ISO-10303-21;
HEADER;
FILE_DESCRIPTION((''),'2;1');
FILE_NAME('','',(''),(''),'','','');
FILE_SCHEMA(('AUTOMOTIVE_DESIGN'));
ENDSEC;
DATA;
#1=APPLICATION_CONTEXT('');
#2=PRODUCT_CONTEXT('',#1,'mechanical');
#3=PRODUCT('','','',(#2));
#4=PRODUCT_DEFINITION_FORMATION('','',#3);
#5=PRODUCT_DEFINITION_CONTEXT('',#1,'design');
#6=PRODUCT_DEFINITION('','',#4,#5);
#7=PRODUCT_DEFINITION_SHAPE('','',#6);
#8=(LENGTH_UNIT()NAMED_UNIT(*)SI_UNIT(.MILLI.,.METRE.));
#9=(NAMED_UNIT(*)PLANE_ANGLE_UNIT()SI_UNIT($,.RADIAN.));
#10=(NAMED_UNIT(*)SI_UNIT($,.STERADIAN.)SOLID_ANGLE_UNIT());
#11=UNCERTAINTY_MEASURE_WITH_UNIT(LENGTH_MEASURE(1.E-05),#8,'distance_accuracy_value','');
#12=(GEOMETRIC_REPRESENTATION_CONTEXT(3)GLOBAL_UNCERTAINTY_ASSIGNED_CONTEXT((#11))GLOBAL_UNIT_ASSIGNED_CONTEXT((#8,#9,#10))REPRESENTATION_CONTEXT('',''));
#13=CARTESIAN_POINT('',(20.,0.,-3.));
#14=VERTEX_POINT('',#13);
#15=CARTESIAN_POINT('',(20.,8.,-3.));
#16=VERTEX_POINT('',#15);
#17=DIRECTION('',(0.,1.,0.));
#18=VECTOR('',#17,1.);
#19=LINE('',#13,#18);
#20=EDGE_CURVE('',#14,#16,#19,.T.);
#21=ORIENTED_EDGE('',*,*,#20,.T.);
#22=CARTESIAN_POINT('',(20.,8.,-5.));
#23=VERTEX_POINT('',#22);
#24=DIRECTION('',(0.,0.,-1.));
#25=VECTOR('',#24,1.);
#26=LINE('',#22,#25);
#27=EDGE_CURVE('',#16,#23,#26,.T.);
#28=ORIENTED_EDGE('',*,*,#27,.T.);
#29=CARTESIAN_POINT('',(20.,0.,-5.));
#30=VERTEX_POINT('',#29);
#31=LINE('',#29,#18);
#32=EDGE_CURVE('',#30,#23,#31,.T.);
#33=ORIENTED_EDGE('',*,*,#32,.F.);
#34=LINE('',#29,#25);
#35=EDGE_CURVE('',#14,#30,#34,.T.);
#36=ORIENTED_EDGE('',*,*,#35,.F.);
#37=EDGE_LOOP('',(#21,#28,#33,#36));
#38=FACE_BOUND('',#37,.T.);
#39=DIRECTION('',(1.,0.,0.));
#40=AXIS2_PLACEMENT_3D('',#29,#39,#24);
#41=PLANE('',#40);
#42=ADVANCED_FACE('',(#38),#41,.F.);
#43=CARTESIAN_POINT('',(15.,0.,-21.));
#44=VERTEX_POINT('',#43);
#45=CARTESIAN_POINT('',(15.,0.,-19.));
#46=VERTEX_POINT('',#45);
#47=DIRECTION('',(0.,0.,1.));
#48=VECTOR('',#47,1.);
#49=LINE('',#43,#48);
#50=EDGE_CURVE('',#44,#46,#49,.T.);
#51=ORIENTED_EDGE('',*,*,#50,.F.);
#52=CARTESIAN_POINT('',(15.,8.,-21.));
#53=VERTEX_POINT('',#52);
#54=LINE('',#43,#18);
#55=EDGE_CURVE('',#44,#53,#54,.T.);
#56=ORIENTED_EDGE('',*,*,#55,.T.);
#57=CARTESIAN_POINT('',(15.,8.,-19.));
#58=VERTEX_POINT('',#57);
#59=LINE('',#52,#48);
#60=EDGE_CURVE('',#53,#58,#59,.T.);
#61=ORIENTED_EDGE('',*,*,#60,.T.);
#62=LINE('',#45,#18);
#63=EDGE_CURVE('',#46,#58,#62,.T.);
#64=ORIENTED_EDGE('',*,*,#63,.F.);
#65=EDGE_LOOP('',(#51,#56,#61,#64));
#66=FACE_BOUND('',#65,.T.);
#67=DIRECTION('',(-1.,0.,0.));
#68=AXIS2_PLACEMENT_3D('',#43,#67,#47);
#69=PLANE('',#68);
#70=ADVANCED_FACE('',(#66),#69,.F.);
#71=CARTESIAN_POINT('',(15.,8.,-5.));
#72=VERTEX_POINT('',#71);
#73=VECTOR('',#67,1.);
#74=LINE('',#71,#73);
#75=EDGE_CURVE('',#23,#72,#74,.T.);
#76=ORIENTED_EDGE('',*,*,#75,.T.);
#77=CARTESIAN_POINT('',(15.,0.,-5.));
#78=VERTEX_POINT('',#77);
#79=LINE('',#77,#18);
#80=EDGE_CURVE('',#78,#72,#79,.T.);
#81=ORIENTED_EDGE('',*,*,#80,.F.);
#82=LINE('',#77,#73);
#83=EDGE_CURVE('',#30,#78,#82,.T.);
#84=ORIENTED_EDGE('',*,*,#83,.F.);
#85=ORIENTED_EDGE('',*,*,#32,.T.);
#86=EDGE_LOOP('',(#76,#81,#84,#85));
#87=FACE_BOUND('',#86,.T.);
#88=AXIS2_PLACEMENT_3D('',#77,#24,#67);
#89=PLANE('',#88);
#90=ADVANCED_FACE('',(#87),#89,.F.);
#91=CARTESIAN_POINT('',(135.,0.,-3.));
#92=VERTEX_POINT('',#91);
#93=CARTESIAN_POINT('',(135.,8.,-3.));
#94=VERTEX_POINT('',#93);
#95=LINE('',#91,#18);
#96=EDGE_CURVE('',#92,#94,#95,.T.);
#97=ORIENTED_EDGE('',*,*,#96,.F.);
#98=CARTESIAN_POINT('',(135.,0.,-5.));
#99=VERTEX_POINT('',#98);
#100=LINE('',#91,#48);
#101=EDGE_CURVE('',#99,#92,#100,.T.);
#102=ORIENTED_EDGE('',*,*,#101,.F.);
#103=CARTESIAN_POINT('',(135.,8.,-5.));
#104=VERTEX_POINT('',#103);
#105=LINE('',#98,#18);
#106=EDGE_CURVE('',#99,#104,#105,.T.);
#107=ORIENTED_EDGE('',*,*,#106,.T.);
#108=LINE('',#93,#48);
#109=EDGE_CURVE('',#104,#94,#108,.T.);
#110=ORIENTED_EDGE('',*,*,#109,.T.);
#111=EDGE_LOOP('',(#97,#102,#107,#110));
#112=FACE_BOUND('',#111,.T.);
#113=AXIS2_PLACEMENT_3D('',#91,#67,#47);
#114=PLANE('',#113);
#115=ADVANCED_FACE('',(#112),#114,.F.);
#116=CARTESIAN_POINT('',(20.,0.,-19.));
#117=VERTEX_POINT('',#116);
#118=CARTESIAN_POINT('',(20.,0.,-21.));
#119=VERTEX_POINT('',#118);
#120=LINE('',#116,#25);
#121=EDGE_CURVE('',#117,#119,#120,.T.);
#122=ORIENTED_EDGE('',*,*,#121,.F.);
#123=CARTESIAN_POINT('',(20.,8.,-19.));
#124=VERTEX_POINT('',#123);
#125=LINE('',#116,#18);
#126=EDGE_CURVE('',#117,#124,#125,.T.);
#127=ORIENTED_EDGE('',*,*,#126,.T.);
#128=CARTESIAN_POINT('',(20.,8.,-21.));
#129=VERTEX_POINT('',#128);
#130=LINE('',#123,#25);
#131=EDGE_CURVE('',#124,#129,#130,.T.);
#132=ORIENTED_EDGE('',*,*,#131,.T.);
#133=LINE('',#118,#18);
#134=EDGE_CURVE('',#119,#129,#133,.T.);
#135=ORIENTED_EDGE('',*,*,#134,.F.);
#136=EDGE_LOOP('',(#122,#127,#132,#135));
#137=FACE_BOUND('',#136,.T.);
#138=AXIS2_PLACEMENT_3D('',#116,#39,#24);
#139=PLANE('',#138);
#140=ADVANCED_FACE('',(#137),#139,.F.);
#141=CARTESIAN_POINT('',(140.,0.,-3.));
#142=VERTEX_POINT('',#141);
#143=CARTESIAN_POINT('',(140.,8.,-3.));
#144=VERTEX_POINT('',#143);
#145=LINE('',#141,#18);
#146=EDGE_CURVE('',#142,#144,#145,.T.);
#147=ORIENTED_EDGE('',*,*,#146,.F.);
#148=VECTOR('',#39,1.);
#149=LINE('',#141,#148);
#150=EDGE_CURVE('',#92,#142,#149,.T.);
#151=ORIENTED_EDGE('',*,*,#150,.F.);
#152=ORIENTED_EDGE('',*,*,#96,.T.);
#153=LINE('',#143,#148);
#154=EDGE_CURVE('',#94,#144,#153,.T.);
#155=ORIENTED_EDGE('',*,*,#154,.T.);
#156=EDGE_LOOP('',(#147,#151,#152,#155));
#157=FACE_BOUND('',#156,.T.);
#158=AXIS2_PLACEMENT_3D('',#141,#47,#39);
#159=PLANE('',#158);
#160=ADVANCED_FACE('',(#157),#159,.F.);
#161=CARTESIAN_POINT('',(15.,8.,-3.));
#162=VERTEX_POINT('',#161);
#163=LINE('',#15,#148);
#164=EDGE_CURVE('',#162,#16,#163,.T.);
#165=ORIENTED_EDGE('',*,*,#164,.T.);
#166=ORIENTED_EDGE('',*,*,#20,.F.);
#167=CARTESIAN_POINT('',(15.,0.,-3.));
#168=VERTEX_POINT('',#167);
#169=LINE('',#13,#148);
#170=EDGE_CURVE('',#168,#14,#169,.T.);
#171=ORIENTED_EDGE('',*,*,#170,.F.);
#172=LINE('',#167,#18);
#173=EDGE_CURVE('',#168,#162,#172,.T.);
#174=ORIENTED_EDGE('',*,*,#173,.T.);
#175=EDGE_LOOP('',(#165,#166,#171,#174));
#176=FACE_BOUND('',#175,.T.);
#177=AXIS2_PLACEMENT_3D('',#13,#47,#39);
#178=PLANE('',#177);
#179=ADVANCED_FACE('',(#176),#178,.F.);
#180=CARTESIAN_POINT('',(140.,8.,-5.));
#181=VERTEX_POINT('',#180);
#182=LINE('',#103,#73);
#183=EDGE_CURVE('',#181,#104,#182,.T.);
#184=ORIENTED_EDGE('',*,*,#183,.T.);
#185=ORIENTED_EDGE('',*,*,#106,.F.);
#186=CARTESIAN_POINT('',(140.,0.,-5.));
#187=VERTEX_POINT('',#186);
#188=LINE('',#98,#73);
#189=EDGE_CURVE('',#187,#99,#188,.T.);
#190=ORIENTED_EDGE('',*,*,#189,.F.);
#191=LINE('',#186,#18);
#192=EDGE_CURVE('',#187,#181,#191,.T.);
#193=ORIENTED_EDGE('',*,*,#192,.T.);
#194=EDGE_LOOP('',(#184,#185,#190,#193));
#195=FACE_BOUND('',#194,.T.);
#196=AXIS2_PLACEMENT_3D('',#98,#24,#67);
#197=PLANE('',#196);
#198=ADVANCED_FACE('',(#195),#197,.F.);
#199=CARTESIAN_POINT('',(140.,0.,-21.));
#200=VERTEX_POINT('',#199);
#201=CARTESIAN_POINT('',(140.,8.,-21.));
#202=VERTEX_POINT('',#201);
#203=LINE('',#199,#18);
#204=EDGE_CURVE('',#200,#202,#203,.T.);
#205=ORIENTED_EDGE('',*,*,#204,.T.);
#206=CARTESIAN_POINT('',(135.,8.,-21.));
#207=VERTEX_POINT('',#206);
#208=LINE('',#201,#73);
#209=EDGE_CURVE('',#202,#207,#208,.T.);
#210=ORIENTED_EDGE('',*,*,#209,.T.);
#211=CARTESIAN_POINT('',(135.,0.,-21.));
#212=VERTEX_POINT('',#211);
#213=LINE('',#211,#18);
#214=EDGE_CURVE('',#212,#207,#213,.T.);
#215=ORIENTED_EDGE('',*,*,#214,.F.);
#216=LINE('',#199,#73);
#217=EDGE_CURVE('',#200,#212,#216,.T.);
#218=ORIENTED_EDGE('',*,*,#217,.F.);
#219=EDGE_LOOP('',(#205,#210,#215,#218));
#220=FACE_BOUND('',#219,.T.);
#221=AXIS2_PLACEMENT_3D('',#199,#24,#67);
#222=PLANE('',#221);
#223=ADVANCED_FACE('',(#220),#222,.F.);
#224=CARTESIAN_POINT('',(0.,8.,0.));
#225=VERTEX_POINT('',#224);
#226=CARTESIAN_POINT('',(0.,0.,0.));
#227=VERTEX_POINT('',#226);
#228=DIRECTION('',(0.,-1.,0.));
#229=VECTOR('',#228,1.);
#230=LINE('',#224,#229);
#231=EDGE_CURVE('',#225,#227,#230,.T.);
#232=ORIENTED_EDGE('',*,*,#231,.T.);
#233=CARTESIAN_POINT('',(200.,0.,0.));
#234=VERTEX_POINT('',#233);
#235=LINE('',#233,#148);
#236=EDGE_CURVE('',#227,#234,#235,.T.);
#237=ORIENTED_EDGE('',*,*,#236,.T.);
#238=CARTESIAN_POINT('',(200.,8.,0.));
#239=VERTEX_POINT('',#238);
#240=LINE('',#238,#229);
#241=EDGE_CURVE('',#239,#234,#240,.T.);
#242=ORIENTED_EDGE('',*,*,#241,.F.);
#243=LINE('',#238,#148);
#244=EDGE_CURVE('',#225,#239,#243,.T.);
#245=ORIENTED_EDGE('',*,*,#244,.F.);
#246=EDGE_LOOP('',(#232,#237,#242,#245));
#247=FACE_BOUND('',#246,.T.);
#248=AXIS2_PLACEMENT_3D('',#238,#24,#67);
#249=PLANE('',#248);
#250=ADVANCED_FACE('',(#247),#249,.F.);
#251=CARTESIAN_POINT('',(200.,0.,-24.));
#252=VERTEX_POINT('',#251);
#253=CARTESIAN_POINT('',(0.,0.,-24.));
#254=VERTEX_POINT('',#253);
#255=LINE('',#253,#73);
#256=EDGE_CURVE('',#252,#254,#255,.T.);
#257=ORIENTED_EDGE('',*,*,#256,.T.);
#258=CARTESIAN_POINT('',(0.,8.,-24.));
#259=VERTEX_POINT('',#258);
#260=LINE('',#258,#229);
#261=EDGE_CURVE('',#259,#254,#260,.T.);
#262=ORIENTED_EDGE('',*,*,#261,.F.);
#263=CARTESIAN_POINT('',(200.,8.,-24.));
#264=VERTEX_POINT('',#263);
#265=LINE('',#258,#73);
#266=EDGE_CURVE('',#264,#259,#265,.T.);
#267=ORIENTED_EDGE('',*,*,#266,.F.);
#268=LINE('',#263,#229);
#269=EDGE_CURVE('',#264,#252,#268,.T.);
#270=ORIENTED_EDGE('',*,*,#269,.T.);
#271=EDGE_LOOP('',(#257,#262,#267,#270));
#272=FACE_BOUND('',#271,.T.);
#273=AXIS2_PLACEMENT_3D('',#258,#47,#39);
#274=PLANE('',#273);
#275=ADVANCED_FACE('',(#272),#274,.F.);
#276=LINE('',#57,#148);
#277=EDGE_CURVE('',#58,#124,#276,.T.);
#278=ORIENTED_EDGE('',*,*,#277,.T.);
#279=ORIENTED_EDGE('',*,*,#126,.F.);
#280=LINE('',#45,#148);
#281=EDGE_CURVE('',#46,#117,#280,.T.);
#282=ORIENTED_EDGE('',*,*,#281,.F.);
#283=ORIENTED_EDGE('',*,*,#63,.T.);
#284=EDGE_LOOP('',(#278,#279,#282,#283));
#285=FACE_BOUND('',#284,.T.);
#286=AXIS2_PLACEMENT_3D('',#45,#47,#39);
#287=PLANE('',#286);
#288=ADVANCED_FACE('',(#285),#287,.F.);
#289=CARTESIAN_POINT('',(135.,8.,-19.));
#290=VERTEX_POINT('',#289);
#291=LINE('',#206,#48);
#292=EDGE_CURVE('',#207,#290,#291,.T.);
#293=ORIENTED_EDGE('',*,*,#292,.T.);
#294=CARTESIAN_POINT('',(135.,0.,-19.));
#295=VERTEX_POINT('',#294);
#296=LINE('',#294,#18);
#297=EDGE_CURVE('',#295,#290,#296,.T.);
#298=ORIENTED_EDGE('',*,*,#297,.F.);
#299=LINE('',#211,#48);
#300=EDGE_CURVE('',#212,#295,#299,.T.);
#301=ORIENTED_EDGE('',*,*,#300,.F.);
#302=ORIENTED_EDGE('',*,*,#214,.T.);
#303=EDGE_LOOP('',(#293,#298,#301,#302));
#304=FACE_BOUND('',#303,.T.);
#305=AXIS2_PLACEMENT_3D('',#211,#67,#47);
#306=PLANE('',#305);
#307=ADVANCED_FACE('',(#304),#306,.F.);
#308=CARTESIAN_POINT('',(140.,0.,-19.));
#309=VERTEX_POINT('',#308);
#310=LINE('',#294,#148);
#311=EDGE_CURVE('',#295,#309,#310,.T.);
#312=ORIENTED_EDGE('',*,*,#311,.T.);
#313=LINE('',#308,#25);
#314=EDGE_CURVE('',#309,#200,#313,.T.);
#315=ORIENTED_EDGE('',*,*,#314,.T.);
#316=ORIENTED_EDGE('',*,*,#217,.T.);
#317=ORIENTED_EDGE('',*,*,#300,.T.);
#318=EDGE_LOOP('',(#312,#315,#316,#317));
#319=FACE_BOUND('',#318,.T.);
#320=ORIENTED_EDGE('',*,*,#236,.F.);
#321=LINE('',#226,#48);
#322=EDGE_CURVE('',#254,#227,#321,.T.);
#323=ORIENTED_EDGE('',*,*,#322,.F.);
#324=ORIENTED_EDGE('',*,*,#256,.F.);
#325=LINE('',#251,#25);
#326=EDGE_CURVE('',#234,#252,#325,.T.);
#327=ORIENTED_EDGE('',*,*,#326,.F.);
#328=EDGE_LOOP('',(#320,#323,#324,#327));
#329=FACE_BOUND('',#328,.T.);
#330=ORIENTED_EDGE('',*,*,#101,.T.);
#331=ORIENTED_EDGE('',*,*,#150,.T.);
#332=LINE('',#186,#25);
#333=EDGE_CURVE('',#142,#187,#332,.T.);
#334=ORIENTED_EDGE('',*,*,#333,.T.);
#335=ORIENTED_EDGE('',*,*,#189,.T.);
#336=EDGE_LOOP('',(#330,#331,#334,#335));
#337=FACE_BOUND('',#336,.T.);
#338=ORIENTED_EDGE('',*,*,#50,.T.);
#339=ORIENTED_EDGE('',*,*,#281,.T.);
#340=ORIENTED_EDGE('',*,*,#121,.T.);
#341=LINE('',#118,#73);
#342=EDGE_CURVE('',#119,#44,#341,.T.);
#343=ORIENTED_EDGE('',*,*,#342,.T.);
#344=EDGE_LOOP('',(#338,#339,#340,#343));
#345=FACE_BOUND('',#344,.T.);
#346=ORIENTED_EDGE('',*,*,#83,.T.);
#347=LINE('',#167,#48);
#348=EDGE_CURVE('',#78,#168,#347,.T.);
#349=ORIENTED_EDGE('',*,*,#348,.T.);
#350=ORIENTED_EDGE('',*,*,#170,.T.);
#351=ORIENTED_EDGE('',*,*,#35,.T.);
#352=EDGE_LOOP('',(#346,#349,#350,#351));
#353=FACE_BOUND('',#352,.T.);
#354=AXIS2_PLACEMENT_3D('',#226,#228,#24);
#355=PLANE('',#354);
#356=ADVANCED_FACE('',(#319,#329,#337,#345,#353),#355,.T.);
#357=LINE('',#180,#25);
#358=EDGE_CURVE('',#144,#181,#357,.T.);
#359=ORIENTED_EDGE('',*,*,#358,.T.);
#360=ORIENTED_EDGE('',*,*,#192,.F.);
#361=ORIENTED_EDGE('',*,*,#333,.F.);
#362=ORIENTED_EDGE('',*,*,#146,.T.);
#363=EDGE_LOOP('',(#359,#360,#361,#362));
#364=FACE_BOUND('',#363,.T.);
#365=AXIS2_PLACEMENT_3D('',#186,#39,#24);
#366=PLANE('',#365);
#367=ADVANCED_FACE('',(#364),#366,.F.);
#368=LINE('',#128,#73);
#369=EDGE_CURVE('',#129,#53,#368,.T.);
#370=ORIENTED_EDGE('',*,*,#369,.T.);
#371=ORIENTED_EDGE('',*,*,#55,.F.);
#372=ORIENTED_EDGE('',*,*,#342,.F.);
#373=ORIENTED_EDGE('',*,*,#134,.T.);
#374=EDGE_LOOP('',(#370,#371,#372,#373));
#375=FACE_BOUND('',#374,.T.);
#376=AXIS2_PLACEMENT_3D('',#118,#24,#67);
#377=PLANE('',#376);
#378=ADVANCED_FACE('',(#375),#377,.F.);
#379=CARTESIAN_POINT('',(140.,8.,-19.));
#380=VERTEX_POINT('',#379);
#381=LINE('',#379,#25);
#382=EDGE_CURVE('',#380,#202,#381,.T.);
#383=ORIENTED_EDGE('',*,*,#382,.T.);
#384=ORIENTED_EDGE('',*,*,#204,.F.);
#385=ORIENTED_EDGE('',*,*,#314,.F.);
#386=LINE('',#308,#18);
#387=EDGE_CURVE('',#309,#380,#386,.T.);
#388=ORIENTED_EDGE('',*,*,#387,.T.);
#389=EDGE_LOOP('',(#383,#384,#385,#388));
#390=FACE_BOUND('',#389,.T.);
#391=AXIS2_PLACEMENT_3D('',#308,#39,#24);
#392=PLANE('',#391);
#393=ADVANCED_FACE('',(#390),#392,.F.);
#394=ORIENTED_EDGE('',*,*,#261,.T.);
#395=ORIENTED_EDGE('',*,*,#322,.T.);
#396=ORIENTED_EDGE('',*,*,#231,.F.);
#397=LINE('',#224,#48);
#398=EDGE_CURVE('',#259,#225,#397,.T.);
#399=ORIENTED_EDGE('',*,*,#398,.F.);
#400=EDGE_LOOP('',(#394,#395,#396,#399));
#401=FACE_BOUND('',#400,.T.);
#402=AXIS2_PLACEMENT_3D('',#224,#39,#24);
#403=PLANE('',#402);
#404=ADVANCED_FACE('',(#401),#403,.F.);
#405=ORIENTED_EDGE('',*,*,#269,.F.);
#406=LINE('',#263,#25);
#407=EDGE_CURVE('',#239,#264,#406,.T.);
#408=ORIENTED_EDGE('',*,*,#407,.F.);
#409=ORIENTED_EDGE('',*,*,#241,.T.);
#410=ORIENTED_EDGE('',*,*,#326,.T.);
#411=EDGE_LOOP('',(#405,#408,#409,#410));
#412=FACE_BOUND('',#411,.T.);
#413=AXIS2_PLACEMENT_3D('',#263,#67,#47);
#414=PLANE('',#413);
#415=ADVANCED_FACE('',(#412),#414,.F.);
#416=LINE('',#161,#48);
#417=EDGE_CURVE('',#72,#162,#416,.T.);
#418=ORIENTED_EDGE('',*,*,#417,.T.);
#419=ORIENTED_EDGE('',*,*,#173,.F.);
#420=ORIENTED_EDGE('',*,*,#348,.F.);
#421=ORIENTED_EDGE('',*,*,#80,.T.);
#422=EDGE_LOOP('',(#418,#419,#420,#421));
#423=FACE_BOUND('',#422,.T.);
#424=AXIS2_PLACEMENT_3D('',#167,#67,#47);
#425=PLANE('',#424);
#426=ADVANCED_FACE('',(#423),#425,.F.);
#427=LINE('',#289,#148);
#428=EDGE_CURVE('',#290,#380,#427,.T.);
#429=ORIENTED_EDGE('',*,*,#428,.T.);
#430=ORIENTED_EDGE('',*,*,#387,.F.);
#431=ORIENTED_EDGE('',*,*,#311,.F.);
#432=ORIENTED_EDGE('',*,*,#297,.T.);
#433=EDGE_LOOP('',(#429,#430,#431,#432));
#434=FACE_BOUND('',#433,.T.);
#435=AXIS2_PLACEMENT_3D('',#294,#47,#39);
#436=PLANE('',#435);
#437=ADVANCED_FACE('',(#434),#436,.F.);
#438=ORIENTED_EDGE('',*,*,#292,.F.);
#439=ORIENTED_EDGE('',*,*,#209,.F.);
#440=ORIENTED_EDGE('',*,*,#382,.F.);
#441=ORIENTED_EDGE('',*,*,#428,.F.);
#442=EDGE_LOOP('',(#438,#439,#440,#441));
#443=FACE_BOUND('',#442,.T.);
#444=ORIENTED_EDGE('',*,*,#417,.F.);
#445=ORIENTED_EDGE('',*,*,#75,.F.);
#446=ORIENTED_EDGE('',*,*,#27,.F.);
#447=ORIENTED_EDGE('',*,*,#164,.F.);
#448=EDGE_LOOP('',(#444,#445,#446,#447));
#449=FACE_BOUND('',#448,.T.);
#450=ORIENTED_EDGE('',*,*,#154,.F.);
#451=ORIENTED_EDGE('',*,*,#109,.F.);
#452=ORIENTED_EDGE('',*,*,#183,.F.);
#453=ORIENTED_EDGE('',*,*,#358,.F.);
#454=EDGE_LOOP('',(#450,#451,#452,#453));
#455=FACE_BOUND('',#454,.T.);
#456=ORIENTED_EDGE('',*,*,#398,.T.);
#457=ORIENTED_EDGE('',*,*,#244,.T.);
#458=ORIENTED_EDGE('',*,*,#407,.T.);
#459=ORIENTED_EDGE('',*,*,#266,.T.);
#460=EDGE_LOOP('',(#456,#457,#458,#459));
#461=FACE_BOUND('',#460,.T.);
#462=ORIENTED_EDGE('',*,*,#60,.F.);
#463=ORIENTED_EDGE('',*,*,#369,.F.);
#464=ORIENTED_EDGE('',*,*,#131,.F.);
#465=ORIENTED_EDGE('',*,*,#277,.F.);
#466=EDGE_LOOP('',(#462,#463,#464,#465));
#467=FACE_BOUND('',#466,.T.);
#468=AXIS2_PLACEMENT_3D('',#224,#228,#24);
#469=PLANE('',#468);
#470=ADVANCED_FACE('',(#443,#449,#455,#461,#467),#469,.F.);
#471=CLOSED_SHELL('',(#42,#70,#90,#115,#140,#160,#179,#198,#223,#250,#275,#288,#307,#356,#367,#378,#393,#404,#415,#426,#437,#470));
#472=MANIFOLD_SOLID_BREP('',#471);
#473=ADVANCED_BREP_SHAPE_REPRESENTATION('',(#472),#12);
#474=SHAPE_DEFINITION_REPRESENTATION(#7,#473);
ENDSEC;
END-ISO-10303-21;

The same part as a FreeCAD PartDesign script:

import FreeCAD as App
import Part
import Sketcher


def add_polygon(sketch, points):
    """Adds a closed chain of lines whose ends are joined by coincident constraints."""
    first, n = sketch.GeometryCount, len(points)
    for a, b in zip(points, points[1:] + points[:1]):
        sketch.addGeometry(Part.LineSegment(App.Vector(*a, 0), App.Vector(*b, 0)), False)
    for i in range(n):
        sketch.addConstraint(Sketcher.Constraint("Coincident", first + i, 2, first + (i + 1) % n, 1))

doc = App.newDocument("Part")
params = doc.addObject("Spreadsheet::Sheet", "Params")
for row, (alias, value) in enumerate([
    ("sketch1_width", "200 mm"),
    ("sketch1_height", "24 mm"),
    ("pad1_length", "8 mm"),
    ("sketch2_width", "5 mm"),
    ("sketch2_height", "2 mm"),
], start=1):
    params.set(f"A{row}", alias)
    params.set(f"B{row}", "=" + value)
    params.setAlias(f"B{row}", alias)

body = doc.addObject("PartDesign::Body", "Body")

sketch1 = body.newObject("Sketcher::SketchObject", "Sketch")
sketch1.AttachmentSupport = (doc.getObject("XZ_Plane"), [""])
sketch1.MapMode = "FlatFace"
add_polygon(sketch1, [(0, -24), (0, 0), (200, 0), (200, -24)])
sketch1.addConstraint([
    Sketcher.Constraint("Vertical", 0),
    Sketcher.Constraint("Horizontal", 1),
    Sketcher.Constraint("Vertical", 2),
    Sketcher.Constraint("Horizontal", 3),
    Sketcher.Constraint("Coincident", 0, 2, -1, 1),
    Sketcher.Constraint("DistanceX", 1, 1, 1, 2, 200.0),
    Sketcher.Constraint("DistanceY", 0, 1, 0, 2, 24.0),
])
sketch1.setExpression("Constraints[9]", "Params.sketch1_width")
sketch1.setExpression("Constraints[10]", "Params.sketch1_height")
pad1 = body.newObject("PartDesign::Pad", "Pad")
pad1.Profile = sketch1
pad1.setExpression("Length", "Params.pad1_length")
pad1.Reversed = True

sketch2 = body.newObject("Sketcher::SketchObject", "Sketch001")
sketch2.AttachmentSupport = (doc.getObject("XZ_Plane"), [""])
sketch2.MapMode = "FlatFace"
sketch2.AttachmentOffset = App.Placement(App.Vector(0, 0, -8), App.Rotation())
add_polygon(sketch2, [(15, -21), (15, -19), (20, -19), (20, -21)])
add_polygon(sketch2, [(135, -21), (135, -19), (140, -19), (140, -21)])
add_polygon(sketch2, [(135, -5), (135, -3), (140, -3), (140, -5)])
add_polygon(sketch2, [(15, -5), (15, -3), (20, -3), (20, -5)])
sketch2.addConstraint([
    Sketcher.Constraint("Vertical", 0),
    Sketcher.Constraint("Horizontal", 1),
    Sketcher.Constraint("Vertical", 2),
    Sketcher.Constraint("Horizontal", 3),
    Sketcher.Constraint("Vertical", 4),
    Sketcher.Constraint("Horizontal", 5),
    Sketcher.Constraint("Vertical", 6),
    Sketcher.Constraint("Horizontal", 7),
    Sketcher.Constraint("Vertical", 8),
    Sketcher.Constraint("Horizontal", 9),
    Sketcher.Constraint("Vertical", 10),
    Sketcher.Constraint("Horizontal", 11),
    Sketcher.Constraint("Vertical", 12),
    Sketcher.Constraint("Horizontal", 13),
    Sketcher.Constraint("Vertical", 14),
    Sketcher.Constraint("Horizontal", 15),
    Sketcher.Constraint("Horizontal", 1, 2, 4, 2),
    Sketcher.Constraint("Horizontal", 3, 2, 6, 2),
    Sketcher.Constraint("Horizontal", 9, 2, 12, 2),
    Sketcher.Constraint("Horizontal", 11, 2, 14, 2),
    Sketcher.Constraint("Vertical", 7, 2, 8, 2),
    Sketcher.Constraint("Vertical", 6, 2, 9, 2),
    Sketcher.Constraint("Vertical", 3, 2, 12, 2),
    Sketcher.Constraint("Vertical", 2, 2, 13, 2),
    Sketcher.Constraint("Equal", 3, 5),
    Sketcher.Constraint("Equal", 6, 8),
    Sketcher.Constraint("DistanceX", 1, 1, 1, 2, 5.0),
    Sketcher.Constraint("DistanceY", 0, 1, 0, 2, 2.0),
    Sketcher.Constraint("DistanceX", -1, 1, 0, 2, 15.0),
    Sketcher.Constraint("DistanceY", 0, 2, -1, 1, 19.0),
    Sketcher.Constraint("DistanceX", -1, 1, 4, 2, 135.0),
    Sketcher.Constraint("DistanceY", 8, 2, -1, 1, 3.0),
])
sketch2.setExpression("Constraints[42]", "Params.sketch2_width")
sketch2.setExpression("Constraints[43]", "Params.sketch2_height")
pocket1 = body.newObject("PartDesign::Pocket", "Pocket")
pocket1.Profile = sketch2
pocket1.Type = "ThroughAll"
pocket1.Reversed = True

doc.recompute()
